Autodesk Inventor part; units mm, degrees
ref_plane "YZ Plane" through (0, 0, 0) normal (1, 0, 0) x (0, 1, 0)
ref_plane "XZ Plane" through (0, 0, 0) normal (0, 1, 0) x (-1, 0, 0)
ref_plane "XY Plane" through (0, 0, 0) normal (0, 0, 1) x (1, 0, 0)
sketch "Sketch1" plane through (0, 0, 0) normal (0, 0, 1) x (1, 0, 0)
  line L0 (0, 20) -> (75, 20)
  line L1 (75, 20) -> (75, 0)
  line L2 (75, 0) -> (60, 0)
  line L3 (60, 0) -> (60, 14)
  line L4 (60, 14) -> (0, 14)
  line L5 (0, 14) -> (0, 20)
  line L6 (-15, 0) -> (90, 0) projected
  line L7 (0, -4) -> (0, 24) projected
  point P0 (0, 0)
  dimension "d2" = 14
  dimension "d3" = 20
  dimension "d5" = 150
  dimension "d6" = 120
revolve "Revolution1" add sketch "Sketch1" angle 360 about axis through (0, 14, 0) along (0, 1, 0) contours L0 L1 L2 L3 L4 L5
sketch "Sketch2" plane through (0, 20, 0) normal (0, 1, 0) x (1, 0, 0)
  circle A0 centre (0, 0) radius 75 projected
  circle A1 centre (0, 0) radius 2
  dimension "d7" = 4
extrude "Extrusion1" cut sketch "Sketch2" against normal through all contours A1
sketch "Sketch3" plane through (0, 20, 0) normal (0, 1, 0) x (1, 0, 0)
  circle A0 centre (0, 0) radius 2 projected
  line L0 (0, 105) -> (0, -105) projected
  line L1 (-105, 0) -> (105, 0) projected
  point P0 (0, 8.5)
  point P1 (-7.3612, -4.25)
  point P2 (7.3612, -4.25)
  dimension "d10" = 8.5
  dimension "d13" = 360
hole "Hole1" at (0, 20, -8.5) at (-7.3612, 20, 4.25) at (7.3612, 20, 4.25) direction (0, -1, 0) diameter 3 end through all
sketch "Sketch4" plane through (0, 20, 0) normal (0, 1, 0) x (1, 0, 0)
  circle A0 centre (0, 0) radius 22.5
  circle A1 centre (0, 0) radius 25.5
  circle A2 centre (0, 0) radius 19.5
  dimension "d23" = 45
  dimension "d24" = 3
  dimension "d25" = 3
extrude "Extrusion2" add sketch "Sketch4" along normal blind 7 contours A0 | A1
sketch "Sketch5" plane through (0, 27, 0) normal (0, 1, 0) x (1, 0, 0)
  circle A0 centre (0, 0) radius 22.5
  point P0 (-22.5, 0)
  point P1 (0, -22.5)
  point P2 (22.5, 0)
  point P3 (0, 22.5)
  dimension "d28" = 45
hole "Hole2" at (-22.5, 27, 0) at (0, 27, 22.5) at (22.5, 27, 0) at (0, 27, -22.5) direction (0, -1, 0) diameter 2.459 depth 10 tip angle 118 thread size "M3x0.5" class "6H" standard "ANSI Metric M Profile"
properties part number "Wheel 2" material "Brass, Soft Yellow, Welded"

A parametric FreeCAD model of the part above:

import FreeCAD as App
import Part
import Sketcher
Q = App.Units.Quantity


def add_polygon(sketch, points):
    """Adds a closed chain of lines whose ends are joined by coincident constraints."""
    first, n = sketch.GeometryCount, len(points)
    for a, b in zip(points, points[1:] + points[:1]):
        sketch.addGeometry(Part.LineSegment(App.Vector(*a, 0), App.Vector(*b, 0)), False)
    for i in range(n):
        sketch.addConstraint(Sketcher.Constraint("Coincident", first + i, 2, first + (i + 1) % n, 1))

doc = App.newDocument("Part")
body = doc.addObject("PartDesign::Body", "Body")

# Sketch on XY plane
sketch1 = doc.addObject("Sketcher::SketchObject", "Sketch")
body.addObject(sketch1)
sketch1.AttachmentSupport = (doc.XY_Plane, [""])
sketch1.MapMode = "FlatFace"
add_polygon(sketch1, [(75, 20), (0, 20), (0, 14), (60, 14), (60, 0), (75, 0)])  # lines 0-5
sketch1.addConstraint([
    Sketcher.Constraint("Horizontal", 0),
    Sketcher.Constraint("Vertical", 1),
    Sketcher.Constraint("Horizontal", 2),
    Sketcher.Constraint("Vertical", 3),
    Sketcher.Constraint("Horizontal", 4),
    Sketcher.Constraint("Vertical", 5),
    Sketcher.Constraint("PointOnObject", 0, 2, -2),
    Sketcher.Constraint("PointOnObject", 3, 2, -1),
    Sketcher.Constraint("DistanceY", 3, 2, 3, 1, Q("14 mm")),
    Sketcher.Constraint("DistanceY", 5, 1, 5, 2, Q("20 mm")),
    Sketcher.Constraint("DistanceX", 0, 2, 0, 1, Q("75 mm")),
    Sketcher.Constraint("DistanceX", 2, 1, 2, 2, Q("60 mm")),
])
revolution = doc.addObject("PartDesign::Revolution", "Revolution")
body.addObject(revolution)
revolution.Profile = sketch1
revolution.ReferenceAxis = (sketch1, ["V_Axis"])
revolution.Angle = 360

# Sketch on XZ plane
sketch2 = doc.addObject("Sketcher::SketchObject", "Sketch001")
body.addObject(sketch2)
sketch2.AttachmentSupport = (doc.XZ_Plane, [""])
sketch2.MapMode = "FlatFace"
sketch2.AttachmentOffset = App.Placement(App.Vector(0, 0, -20), App.Rotation())
sketch2.addGeometry(Part.Circle(App.Vector(0, 0, 0), App.Vector(0, 0, 1), 2), False)
sketch2.addConstraint([
    Sketcher.Constraint("Coincident", 0, 3, -1, 1),
    Sketcher.Constraint("Diameter", 0, Q("4 mm")),
])
pocket1 = doc.addObject("PartDesign::Pocket", "Pocket")
body.addObject(pocket1)
pocket1.Profile = sketch2
pocket1.Type = "ThroughAll"
pocket1.Reversed = True

# Sketch on XZ plane
sketch3 = doc.addObject("Sketcher::SketchObject", "Sketch002")
body.addObject(sketch3)
sketch3.AttachmentSupport = (doc.XZ_Plane, [""])
sketch3.MapMode = "FlatFace"
sketch3.AttachmentOffset = App.Placement(App.Vector(0, 0, -20), App.Rotation())
sketch3.addGeometry([
    Part.Circle(App.Vector(0, -8.5, 0), App.Vector(0, 0, 1), 1.5),
    Part.Circle(App.Vector(-7.4, 4.2, 0), App.Vector(0, 0, 1), 1.5),
    Part.Circle(App.Vector(7.4, 4.2, 0), App.Vector(0, 0, 1), 1.5),
], False)
sketch3.addConstraint([
    Sketcher.Constraint("Equal", 0, 1),
    Sketcher.Constraint("Equal", 1, 2),
    Sketcher.Constraint("Symmetric", 1, 3, 2, 3, -2),
    Sketcher.Constraint("PointOnObject", 0, 3, -2),
    Sketcher.Constraint("Diameter", 0, Q("3 mm")),
    Sketcher.Constraint("DistanceY", 0, 3, -1, 1, Q("8.5 mm")),
    Sketcher.Constraint("DistanceY", -1, 1, 1, 3, Q("4.25 mm")),
    Sketcher.Constraint("DistanceX", 1, 3, -1, 1, Q("7.3612 mm")),
])
doc.recompute()
hole = doc.addObject("PartDesign::Hole", "Hole")
body.addObject(hole)
hole.Profile = sketch3
hole.ThreadType = "None"
hole.Diameter = 3
hole.DepthType = "ThroughAll"
hole.Reversed = True

# Sketch on XZ plane
sketch4 = doc.addObject("Sketcher::SketchObject", "Sketch003")
body.addObject(sketch4)
sketch4.AttachmentSupport = (doc.XZ_Plane, [""])
sketch4.MapMode = "FlatFace"
sketch4.AttachmentOffset = App.Placement(App.Vector(0, 0, -20), App.Rotation())
sketch4.addGeometry([
    Part.Circle(App.Vector(0, 0, 0), App.Vector(0, 0, 1), 26),
    Part.Circle(App.Vector(0, 0, 0), App.Vector(0, 0, 1), 20),
], False)
sketch4.addConstraint([
    Sketcher.Constraint("Coincident", 0, 3, -1, 1),
    Sketcher.Constraint("Coincident", 1, 3, -1, 1),
    Sketcher.Constraint("Diameter", 0, Q("51 mm")),
    Sketcher.Constraint("Diameter", 1, Q("39 mm")),
])
pad1 = doc.addObject("PartDesign::Pad", "Pad")
body.addObject(pad1)
pad1.Profile = sketch4
pad1.Length = 7
pad1.Reversed = True

# Sketch on XZ plane
sketch5 = doc.addObject("Sketcher::SketchObject", "Sketch004")
body.addObject(sketch5)
sketch5.AttachmentSupport = (doc.XZ_Plane, [""])
sketch5.MapMode = "FlatFace"
sketch5.AttachmentOffset = App.Placement(App.Vector(0, 0, -27), App.Rotation())
sketch5.addGeometry([
    Part.Circle(App.Vector(-22.5, 0, 0), App.Vector(0, 0, 1), 1.2),
    Part.Circle(App.Vector(0, 22.5, 0), App.Vector(0, 0, 1), 1.2),
    Part.Circle(App.Vector(22.5, 0, 0), App.Vector(0, 0, 1), 1.2),
    Part.Circle(App.Vector(0, -22.5, 0), App.Vector(0, 0, 1), 1.2),
], False)
sketch5.addConstraint([
    Sketcher.Constraint("Equal", 0, 1),
    Sketcher.Constraint("Equal", 1, 2),
    Sketcher.Constraint("Equal", 2, 3),
    Sketcher.Constraint("Symmetric", 0, 3, 2, 3, -1, 1),
    Sketcher.Constraint("Symmetric", 1, 3, 3, 3, -1, 1),
    Sketcher.Constraint("PointOnObject", 0, 3, -1),
    Sketcher.Constraint("PointOnObject", 1, 3, -2),
    Sketcher.Constraint("Diameter", 0, Q("2.459 mm")),
    Sketcher.Constraint("DistanceX", 0, 3, 2, 3, Q("45 mm")),
    Sketcher.Constraint("DistanceY", 3, 3, 1, 3, Q("45 mm")),
])
doc.recompute()
hole2 = doc.addObject("PartDesign::Hole", "Hole001")
body.addObject(hole2)
hole2.Profile = sketch5
hole2.ThreadType = "None"
hole2.Diameter = 2.459
hole2.DepthType = "Dimension"
hole2.Depth = 10
hole2.DrillPoint = "Angled"
hole2.DrillPointAngle = 118
hole2.Reversed = True

doc.recompute()
